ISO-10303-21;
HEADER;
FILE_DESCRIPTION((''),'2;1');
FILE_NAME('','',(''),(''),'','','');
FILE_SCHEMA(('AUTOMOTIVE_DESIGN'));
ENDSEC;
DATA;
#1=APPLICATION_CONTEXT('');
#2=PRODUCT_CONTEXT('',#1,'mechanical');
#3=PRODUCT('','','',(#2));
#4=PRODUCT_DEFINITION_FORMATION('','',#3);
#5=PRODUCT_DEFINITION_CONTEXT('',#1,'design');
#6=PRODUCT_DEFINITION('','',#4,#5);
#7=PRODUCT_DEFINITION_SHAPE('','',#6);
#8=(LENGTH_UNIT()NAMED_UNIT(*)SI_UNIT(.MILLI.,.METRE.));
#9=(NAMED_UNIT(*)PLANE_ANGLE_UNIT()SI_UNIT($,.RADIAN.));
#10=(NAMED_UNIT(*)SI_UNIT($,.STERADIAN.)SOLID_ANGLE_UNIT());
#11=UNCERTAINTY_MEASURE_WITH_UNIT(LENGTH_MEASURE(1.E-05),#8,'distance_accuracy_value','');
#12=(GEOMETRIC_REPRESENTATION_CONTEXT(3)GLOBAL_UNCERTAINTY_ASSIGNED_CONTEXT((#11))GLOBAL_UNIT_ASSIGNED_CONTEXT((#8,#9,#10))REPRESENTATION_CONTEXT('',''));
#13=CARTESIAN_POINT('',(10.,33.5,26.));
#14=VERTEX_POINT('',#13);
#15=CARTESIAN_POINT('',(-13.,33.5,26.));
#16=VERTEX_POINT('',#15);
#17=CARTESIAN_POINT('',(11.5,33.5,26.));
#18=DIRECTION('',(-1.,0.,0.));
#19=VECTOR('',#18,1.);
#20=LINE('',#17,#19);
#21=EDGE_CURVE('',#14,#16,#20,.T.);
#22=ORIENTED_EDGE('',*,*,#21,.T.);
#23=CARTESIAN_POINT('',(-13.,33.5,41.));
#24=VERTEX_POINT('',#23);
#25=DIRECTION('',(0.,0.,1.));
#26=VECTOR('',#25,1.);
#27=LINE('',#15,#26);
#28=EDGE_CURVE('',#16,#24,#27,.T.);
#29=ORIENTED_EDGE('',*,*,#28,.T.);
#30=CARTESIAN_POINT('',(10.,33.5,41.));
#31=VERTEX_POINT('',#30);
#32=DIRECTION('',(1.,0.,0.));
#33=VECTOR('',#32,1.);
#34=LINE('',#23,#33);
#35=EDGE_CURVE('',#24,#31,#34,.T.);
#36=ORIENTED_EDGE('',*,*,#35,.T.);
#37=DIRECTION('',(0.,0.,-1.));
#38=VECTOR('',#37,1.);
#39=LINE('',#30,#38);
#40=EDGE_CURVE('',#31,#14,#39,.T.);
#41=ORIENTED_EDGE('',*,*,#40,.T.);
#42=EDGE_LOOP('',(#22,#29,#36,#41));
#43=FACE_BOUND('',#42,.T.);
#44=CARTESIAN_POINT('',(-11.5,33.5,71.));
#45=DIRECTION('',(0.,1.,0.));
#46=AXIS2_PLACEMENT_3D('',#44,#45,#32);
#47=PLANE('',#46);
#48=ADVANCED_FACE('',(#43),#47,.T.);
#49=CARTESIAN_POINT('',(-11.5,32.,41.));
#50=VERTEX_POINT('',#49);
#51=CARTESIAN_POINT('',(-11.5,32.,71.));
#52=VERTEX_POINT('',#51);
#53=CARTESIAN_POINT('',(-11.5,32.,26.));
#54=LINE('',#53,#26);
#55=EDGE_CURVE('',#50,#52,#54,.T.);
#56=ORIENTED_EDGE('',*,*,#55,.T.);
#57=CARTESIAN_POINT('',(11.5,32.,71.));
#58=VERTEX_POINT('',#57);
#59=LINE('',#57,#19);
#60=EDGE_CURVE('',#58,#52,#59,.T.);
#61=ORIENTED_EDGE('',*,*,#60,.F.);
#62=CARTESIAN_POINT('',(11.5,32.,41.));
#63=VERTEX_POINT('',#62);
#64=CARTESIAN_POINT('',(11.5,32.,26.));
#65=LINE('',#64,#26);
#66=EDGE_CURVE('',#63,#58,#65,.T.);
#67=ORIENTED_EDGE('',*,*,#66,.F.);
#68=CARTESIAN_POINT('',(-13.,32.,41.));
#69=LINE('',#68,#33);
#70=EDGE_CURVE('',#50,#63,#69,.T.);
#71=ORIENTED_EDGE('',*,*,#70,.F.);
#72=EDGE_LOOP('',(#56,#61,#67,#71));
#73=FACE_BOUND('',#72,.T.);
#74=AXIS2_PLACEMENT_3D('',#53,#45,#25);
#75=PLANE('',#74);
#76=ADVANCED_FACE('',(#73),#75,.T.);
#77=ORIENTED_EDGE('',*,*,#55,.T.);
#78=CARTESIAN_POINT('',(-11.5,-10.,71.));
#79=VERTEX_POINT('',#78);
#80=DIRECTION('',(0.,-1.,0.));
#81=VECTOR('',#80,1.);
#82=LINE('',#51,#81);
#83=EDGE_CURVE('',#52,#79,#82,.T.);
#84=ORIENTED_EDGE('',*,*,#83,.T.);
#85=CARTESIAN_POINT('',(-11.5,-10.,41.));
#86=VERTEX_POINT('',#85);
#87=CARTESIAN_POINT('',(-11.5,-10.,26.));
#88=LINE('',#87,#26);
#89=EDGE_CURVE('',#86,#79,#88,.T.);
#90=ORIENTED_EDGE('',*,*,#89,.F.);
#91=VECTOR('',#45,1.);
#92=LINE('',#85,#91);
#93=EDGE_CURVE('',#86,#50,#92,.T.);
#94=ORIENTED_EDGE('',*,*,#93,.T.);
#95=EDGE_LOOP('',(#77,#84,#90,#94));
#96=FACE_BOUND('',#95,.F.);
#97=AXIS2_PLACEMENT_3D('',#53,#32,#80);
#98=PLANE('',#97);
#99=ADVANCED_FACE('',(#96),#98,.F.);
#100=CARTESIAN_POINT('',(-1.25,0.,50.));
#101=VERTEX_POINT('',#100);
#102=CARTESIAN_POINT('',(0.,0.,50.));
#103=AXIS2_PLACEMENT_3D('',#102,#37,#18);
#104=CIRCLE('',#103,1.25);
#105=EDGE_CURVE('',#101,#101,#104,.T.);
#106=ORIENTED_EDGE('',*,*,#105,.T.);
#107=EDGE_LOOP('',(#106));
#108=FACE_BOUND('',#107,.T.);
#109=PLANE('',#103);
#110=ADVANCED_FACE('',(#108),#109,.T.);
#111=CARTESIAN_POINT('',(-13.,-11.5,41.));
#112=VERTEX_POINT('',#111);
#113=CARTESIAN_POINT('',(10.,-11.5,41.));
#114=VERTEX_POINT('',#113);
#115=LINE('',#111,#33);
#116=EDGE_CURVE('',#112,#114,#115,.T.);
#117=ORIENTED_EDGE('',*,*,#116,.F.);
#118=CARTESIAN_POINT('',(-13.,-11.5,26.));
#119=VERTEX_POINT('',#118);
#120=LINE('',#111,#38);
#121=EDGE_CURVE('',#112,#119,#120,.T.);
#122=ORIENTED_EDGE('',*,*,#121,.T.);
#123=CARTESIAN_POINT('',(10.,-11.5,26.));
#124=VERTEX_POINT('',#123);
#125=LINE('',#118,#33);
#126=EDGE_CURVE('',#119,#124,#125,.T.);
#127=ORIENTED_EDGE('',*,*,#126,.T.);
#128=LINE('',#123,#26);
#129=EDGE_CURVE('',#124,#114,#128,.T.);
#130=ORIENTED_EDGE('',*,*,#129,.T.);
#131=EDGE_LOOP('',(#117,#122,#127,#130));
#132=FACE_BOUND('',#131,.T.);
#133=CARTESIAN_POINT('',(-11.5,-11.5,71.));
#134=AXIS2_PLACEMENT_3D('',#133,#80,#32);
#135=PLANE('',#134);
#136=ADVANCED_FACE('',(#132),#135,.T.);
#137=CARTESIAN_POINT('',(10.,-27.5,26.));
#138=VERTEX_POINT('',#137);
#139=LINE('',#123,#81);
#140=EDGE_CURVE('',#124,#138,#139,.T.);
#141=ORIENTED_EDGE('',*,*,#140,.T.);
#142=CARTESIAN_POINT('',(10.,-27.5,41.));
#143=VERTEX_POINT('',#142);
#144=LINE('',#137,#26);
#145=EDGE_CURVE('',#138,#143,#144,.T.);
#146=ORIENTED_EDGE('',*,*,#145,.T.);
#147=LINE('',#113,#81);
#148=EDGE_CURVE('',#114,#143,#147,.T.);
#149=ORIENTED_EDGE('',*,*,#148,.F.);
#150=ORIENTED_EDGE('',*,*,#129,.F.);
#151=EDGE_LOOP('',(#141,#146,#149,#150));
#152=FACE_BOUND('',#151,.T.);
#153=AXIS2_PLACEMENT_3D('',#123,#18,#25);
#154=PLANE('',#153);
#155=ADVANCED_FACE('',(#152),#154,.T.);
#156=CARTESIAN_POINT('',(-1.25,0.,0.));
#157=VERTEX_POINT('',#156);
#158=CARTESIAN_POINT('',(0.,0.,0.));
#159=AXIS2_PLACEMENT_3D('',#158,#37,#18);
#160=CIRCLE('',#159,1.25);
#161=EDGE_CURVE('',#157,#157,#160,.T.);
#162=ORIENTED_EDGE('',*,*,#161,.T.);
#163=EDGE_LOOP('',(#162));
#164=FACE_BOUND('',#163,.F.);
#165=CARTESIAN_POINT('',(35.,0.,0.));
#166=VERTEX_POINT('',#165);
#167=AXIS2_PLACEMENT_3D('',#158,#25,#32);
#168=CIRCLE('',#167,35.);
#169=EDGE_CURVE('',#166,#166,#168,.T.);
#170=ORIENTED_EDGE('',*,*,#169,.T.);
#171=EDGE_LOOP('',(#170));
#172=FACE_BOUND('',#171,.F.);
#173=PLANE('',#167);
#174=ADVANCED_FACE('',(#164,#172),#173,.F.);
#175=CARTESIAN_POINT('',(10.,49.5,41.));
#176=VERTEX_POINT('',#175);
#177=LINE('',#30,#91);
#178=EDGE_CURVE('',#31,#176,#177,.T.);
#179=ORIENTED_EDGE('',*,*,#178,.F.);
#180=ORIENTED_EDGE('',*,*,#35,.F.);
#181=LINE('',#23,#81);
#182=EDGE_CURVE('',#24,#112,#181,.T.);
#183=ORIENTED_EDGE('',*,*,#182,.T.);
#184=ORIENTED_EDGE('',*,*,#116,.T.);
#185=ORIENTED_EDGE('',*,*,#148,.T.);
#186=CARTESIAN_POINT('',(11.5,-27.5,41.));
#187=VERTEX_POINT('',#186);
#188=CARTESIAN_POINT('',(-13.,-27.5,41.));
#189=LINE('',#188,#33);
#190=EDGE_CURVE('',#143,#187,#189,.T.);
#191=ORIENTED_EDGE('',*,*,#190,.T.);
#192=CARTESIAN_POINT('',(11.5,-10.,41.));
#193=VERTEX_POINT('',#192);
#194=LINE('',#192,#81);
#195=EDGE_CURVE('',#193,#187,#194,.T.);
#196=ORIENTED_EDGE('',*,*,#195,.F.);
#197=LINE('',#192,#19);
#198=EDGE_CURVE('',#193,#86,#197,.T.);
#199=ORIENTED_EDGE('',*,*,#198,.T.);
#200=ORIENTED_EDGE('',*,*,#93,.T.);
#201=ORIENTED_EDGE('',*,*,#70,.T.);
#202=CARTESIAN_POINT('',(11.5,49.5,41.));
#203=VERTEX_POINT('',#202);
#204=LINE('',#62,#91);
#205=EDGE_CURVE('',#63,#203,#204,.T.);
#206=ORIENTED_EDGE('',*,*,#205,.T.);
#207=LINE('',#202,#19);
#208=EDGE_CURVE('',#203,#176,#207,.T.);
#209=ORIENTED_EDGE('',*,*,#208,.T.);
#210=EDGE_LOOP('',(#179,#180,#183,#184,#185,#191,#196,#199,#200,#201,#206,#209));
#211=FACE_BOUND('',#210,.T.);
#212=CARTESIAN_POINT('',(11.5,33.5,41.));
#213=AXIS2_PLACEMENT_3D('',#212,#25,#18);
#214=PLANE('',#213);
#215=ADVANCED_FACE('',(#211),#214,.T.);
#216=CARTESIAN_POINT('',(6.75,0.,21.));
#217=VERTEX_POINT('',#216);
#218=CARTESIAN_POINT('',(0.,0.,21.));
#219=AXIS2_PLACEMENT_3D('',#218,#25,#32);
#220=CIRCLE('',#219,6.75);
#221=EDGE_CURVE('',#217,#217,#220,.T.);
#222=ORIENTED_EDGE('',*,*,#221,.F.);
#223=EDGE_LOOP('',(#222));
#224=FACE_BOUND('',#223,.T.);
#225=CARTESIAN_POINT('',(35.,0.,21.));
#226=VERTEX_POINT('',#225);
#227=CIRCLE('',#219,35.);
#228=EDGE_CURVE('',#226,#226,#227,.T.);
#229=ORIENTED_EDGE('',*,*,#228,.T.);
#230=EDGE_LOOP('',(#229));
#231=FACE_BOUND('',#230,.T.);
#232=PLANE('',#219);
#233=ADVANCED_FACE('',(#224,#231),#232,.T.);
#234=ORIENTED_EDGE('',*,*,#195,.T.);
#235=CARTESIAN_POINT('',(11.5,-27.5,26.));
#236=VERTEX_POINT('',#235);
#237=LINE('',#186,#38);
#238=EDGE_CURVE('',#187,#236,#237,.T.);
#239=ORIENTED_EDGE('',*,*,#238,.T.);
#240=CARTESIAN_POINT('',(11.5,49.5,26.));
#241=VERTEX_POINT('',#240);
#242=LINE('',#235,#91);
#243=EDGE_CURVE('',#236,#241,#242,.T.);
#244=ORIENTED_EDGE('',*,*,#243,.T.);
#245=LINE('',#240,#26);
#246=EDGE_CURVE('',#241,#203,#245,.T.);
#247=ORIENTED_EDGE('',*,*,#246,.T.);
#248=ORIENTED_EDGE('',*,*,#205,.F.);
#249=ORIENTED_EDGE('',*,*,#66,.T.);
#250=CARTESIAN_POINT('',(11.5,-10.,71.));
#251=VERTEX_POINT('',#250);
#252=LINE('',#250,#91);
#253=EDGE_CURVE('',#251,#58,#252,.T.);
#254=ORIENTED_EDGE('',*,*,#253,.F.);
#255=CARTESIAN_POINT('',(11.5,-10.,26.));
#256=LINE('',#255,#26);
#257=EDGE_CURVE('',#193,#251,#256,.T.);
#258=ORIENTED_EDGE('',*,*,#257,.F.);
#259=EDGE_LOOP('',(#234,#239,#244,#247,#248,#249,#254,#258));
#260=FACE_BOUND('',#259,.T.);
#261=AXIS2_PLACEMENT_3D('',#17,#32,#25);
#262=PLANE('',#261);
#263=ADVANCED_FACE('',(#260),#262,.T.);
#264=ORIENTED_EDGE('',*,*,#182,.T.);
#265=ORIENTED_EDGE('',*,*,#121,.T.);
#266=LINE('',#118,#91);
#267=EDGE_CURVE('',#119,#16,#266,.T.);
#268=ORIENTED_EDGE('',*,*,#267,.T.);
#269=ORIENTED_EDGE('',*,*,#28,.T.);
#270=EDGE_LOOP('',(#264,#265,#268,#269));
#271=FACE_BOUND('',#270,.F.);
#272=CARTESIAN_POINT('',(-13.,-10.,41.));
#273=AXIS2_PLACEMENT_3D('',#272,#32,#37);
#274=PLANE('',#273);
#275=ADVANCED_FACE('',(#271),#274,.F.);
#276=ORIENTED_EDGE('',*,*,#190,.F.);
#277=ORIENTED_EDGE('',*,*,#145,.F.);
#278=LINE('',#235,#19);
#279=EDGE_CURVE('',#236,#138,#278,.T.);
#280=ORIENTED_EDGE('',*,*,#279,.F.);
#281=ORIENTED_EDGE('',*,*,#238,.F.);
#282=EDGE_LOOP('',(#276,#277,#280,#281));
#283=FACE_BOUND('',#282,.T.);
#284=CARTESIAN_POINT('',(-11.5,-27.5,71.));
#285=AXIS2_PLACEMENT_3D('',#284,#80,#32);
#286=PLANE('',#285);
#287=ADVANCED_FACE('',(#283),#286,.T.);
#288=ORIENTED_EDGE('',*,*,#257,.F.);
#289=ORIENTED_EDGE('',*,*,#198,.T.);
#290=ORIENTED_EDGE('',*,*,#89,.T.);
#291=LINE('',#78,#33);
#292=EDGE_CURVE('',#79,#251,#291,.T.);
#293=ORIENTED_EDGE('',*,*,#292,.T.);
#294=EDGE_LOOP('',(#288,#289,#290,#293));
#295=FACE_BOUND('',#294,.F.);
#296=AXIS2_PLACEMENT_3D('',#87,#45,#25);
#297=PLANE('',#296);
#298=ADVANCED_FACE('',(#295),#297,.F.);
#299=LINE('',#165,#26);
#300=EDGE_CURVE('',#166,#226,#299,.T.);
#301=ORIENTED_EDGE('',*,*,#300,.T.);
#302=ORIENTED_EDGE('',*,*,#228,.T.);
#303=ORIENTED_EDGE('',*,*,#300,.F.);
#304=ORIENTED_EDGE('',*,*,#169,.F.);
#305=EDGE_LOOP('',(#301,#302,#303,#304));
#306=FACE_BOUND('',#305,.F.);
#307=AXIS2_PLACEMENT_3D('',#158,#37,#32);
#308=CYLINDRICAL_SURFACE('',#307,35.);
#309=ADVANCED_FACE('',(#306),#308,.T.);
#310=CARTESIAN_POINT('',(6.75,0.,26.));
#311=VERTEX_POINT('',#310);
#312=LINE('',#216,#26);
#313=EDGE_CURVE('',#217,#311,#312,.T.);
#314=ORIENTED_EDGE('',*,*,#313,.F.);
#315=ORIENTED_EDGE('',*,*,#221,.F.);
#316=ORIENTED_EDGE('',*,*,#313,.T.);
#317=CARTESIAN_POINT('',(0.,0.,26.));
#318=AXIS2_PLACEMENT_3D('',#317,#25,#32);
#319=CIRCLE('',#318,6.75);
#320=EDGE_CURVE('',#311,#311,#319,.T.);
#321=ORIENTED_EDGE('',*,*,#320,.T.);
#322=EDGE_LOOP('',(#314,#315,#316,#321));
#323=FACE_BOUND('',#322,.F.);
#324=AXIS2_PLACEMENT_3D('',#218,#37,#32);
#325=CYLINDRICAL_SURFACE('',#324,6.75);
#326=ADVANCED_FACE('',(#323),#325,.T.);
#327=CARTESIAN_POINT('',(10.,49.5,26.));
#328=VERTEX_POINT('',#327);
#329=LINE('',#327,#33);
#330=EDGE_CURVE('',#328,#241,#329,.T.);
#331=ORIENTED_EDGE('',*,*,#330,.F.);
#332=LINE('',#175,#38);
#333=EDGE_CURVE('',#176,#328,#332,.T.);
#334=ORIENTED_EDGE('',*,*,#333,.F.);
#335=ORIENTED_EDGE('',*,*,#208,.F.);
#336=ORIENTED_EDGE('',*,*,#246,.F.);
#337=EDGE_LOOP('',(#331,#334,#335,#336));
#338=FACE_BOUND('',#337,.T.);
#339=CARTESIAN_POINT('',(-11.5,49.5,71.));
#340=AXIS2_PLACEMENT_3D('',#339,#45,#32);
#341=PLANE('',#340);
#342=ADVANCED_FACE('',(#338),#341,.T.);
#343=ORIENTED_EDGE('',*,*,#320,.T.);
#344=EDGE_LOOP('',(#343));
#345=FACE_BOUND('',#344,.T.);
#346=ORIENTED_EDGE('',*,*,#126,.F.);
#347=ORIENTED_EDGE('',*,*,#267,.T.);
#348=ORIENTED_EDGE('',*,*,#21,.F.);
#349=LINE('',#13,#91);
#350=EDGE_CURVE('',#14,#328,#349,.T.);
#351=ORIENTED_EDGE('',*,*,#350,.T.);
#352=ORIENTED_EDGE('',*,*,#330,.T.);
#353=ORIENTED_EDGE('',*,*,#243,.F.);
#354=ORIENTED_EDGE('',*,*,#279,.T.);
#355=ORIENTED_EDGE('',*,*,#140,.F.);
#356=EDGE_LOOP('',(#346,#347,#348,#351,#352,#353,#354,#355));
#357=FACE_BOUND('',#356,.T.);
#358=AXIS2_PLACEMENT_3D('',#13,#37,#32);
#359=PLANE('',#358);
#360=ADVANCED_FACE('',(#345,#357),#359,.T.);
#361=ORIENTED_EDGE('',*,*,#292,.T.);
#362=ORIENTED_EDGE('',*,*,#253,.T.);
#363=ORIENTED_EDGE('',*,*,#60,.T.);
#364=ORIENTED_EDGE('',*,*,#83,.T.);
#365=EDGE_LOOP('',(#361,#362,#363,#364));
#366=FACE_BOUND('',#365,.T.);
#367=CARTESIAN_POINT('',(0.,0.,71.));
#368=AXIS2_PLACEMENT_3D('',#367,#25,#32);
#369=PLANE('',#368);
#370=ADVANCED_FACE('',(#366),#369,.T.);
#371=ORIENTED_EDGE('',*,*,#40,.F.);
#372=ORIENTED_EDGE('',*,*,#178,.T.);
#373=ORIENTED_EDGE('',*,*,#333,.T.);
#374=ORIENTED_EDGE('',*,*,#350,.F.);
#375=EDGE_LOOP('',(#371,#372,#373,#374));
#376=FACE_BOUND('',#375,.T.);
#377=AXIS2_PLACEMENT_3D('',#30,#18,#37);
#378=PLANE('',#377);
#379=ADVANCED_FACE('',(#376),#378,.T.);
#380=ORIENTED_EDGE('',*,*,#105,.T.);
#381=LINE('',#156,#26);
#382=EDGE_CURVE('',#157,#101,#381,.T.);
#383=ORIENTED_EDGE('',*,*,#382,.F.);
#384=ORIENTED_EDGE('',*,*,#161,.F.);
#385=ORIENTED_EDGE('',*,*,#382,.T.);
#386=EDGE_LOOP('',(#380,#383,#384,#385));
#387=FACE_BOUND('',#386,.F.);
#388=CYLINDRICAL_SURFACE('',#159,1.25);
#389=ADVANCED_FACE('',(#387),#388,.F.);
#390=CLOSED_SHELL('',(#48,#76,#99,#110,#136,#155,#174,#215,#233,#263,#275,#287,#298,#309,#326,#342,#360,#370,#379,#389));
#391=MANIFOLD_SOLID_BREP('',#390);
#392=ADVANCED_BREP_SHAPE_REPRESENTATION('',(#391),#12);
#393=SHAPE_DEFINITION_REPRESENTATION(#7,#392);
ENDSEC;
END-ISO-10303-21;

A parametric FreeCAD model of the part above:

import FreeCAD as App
import Part
import Sketcher

V = App.Vector


def add_polygon(sketch, points):
    """Adds a closed chain of lines whose ends are joined by coincident constraints."""
    first, n = sketch.GeometryCount, len(points)
    for a, b in zip(points, points[1:] + points[:1]):
        sketch.addGeometry(Part.LineSegment(App.Vector(*a, 0), App.Vector(*b, 0)), False)
    for i in range(n):
        sketch.addConstraint(Sketcher.Constraint("Coincident", first + i, 2, first + (i + 1) % n, 1))

doc = App.newDocument("Part")
body = doc.addObject("PartDesign::Body", "Body")

sketch1 = body.newObject("Sketcher::SketchObject", "Sketch")
sketch1.AttachmentSupport = (doc.getObject("XY_Plane"), [""])
sketch1.MapMode = "FlatFace"
sketch1.addGeometry(Part.Circle(V(0, 0, 0), V(0, 0, 1), 35), False)
sketch1.addConstraint(Sketcher.Constraint("Coincident", 0, 3, -1, 1))
sketch1.addConstraint(Sketcher.Constraint("Diameter", 0, 70.0))
pad1 = body.newObject("PartDesign::Pad", "Pad")
pad1.Profile = sketch1
pad1.Length = 21

sketch2 = body.newObject("Sketcher::SketchObject", "Sketch001")
sketch2.AttachmentSupport = (doc.getObject("XY_Plane"), [""])
sketch2.MapMode = "FlatFace"
sketch2.AttachmentOffset = App.Placement(V(0, 0, 21), App.Rotation())
sketch2.addGeometry(Part.Circle(V(0, 0, 0), V(0, 0, 1), 6.75), False)
sketch2.addConstraint(Sketcher.Constraint("Coincident", 0, 3, -1, 1))
sketch2.addConstraint(Sketcher.Constraint("Diameter", 0, 13.5))
pad2 = body.newObject("PartDesign::Pad", "Pad001")
pad2.Profile = sketch2
pad2.Length = 5

sketch3 = body.newObject("Sketcher::SketchObject", "Sketch002")
sketch3.AttachmentSupport = (doc.getObject("XY_Plane"), [""])
sketch3.MapMode = "FlatFace"
sketch3.AttachmentOffset = App.Placement(V(0, 0, 26), App.Rotation())
add_polygon(sketch3, [(-11.5, 32), (-11.5, -10), (11.5, -10), (11.5, 32)])
sketch3.addConstraint(Sketcher.Constraint("Vertical", 0))
sketch3.addConstraint(Sketcher.Constraint("Horizontal", 1))
sketch3.addConstraint(Sketcher.Constraint("Vertical", 2))
sketch3.addConstraint(Sketcher.Constraint("Horizontal", 3))
sketch3.addConstraint(Sketcher.Constraint("DistanceX", 1, 1, 1, 2, 23.0))
sketch3.addConstraint(Sketcher.Constraint("DistanceY", 0, 2, 0, 1, 42.0))
sketch3.addConstraint(Sketcher.Constraint("DistanceY", 0, 2, -1, 1, 10.0))
sketch3.addConstraint(Sketcher.Constraint("DistanceX", 0, 2, -1, 1, 11.5))
pad3 = body.newObject("PartDesign::Pad", "Pad002")
pad3.Profile = sketch3
pad3.Length = 45

sketch4 = body.newObject("Sketcher::SketchObject", "Sketch003")
sketch4.AttachmentSupport = (doc.getObject("YZ_Plane"), [""])
sketch4.MapMode = "FlatFace"
sketch4.AttachmentOffset = App.Placement(V(0, 0, -11.5), App.Rotation())
add_polygon(sketch4, [(32, 26), (-10, 26), (-10, 41), (32, 41)])
sketch4.addConstraint(Sketcher.Constraint("Horizontal", 0))
sketch4.addConstraint(Sketcher.Constraint("Vertical", 1))
sketch4.addConstraint(Sketcher.Constraint("Horizontal", 2))
sketch4.addConstraint(Sketcher.Constraint("Vertical", 3))
sketch4.addConstraint(Sketcher.Constraint("DistanceY", 1, 1, 1, 2, 15.0))
sketch4.addConstraint(Sketcher.Constraint("DistanceX", 0, 2, 0, 1, 42.0))
sketch4.addConstraint(Sketcher.Constraint("DistanceX", 0, 2, -1, 1, 10.0))
sketch4.addConstraint(Sketcher.Constraint("DistanceY", -1, 1, 0, 2, 26.0))
pad4 = body.newObject("PartDesign::Pad", "Pad003")
pad4.Profile = sketch4
pad4.Length = 1.5
pad4.Reversed = True

sketch5 = body.newObject("Sketcher::SketchObject", "Sketch004")
sketch5.AttachmentSupport = (doc.getObject("XZ_Plane"), [""])
sketch5.MapMode = "FlatFace"
sketch5.AttachmentOffset = App.Placement(V(0, 0, -32), App.Rotation())
add_polygon(sketch5, [(11.5, 26), (-13, 26), (-13, 41), (11.5, 41)])
sketch5.addConstraint(Sketcher.Constraint("Horizontal", 0))
sketch5.addConstraint(Sketcher.Constraint("Vertical", 1))
sketch5.addConstraint(Sketcher.Constraint("Horizontal", 2))
sketch5.addConstraint(Sketcher.Constraint("Vertical", 3))
sketch5.addConstraint(Sketcher.Constraint("DistanceY", 1, 1, 1, 2, 15.0))
sketch5.addConstraint(Sketcher.Constraint("DistanceX", 0, 2, 0, 1, 24.5))
sketch5.addConstraint(Sketcher.Constraint("DistanceX", 0, 2, -1, 1, 13.0))
sketch5.addConstraint(Sketcher.Constraint("DistanceY", -1, 1, 0, 2, 26.0))
pad5 = body.newObject("PartDesign::Pad", "Pad004")
pad5.Profile = sketch5
pad5.Length = 1.5
pad5.Reversed = True

sketch6 = body.newObject("Sketcher::SketchObject", "Sketch005")
sketch6.AttachmentSupport = (doc.getObject("XZ_Plane"), [""])
sketch6.MapMode = "FlatFace"
sketch6.AttachmentOffset = App.Placement(V(0, 0, 10), App.Rotation())
add_polygon(sketch6, [(11.5, 26), (11.5, 41), (-13, 41), (-13, 26)])
sketch6.addConstraint(Sketcher.Constraint("Vertical", 0))
sketch6.addConstraint(Sketcher.Constraint("Horizontal", 1))
sketch6.addConstraint(Sketcher.Constraint("Vertical", 2))
sketch6.addConstraint(Sketcher.Constraint("Horizontal", 3))
sketch6.addConstraint(Sketcher.Constraint("DistanceY", 0, 1, 0, 2, 15.0))
sketch6.addConstraint(Sketcher.Constraint("DistanceX", 1, 2, 1, 1, 24.5))
sketch6.addConstraint(Sketcher.Constraint("DistanceY", -1, 1, 0, 2, 41.0))
sketch6.addConstraint(Sketcher.Constraint("DistanceX", 1, 2, -1, 1, 13.0))
pad6 = body.newObject("PartDesign::Pad", "Pad005")
pad6.Profile = sketch6
pad6.Length = 1.5

sketch7 = body.newObject("Sketcher::SketchObject", "Sketch006")
sketch7.AttachmentSupport = (doc.getObject("XZ_Plane"), [""])
sketch7.MapMode = "FlatFace"
sketch7.AttachmentOffset = App.Placement(V(0, 0, 11.5), App.Rotation())
add_polygon(sketch7, [(10, 26), (11.5, 26), (11.5, 41), (10, 41)])
sketch7.addConstraint(Sketcher.Constraint("Horizontal", 0))
sketch7.addConstraint(Sketcher.Constraint("Vertical", 1))
sketch7.addConstraint(Sketcher.Constraint("Horizontal", 2))
sketch7.addConstraint(Sketcher.Constraint("Vertical", 3))
sketch7.addConstraint(Sketcher.Constraint("DistanceX", 0, 1, 0, 2, 1.5))
sketch7.addConstraint(Sketcher.Constraint("DistanceY", 1, 1, 1, 2, 15.0))
sketch7.addConstraint(Sketcher.Constraint("DistanceY", -1, 1, 0, 2, 26.0))
sketch7.addConstraint(Sketcher.Constraint("DistanceX", -1, 1, 2, 2, 10.0))
pad7 = body.newObject("PartDesign::Pad", "Pad006")
pad7.Profile = sketch7
pad7.Length = 16

sketch8 = body.newObject("Sketcher::SketchObject", "Sketch007")
sketch8.AttachmentSupport = (doc.getObject("XZ_Plane"), [""])
sketch8.MapMode = "FlatFace"
sketch8.AttachmentOffset = App.Placement(V(0, 0, -33.5), App.Rotation())
add_polygon(sketch8, [(10, 41), (11.5, 41), (11.5, 26), (10, 26)])
sketch8.addConstraint(Sketcher.Constraint("Horizontal", 0))
sketch8.addConstraint(Sketcher.Constraint("Vertical", 1))
sketch8.addConstraint(Sketcher.Constraint("Horizontal", 2))
sketch8.addConstraint(Sketcher.Constraint("Vertical", 3))
sketch8.addConstraint(Sketcher.Constraint("DistanceX", 0, 1, 0, 2, 1.5))
sketch8.addConstraint(Sketcher.Constraint("DistanceY", 1, 2, 1, 1, 15.0))
sketch8.addConstraint(Sketcher.Constraint("DistanceY", -1, 1, 0, 2, 41.0))
sketch8.addConstraint(Sketcher.Constraint("DistanceX", -1, 1, 2, 2, 10.0))
pad8 = body.newObject("PartDesign::Pad", "Pad007")
pad8.Profile = sketch8
pad8.Length = 16
pad8.Reversed = True

sketch9 = body.newObject("Sketcher::SketchObject", "Sketch008")
sketch9.AttachmentSupport = (doc.getObject("XY_Plane"), [""])
sketch9.MapMode = "FlatFace"
sketch9.addGeometry(Part.Circle(V(0, 0, 0), V(0, 0, 1), 1.25), False)
sketch9.addConstraint(Sketcher.Constraint("Coincident", 0, 3, -1, 1))
sketch9.addConstraint(Sketcher.Constraint("Diameter", 0, 2.5))
pocket1 = body.newObject("PartDesign::Pocket", "Pocket")
pocket1.Profile = sketch9
pocket1.Length = 50
pocket1.Reversed = True

doc.recompute()
